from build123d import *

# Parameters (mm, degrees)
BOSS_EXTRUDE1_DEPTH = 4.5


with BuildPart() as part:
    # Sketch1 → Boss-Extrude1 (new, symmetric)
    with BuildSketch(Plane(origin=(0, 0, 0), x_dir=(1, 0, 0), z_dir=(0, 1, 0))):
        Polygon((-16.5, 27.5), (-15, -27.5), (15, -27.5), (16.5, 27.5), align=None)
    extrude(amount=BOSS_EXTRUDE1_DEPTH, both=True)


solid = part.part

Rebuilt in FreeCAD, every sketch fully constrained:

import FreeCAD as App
import Part
import Sketcher
from FreeCAD import Vector
Q = App.Units.Quantity

doc = App.newDocument("Part")
params = doc.addObject("Spreadsheet::Sheet", "Params")
for row, (alias, value) in enumerate([
    ("sketch1_width", "30 mm"),
    ("sketch1_width2", "33 mm"),
    ("pad1_length", "9 mm"),
], start=1):
    params.set(f"A{row}", alias)
    params.set(f"B{row}", "=" + value)
    params.setAlias(f"B{row}", alias)

body = doc.addObject("PartDesign::Body", "Body")

sketch1 = doc.addObject("Sketcher::SketchObject", "Sketch")
body.addObject(sketch1)
sketch1.AttachmentSupport = (doc.XZ_Plane, [""])
sketch1.MapMode = "FlatFace"
sketch1.addGeometry([
    Part.LineSegment(Vector(-16, -28, 0), Vector(-15, 28, 0)),
    Part.LineSegment(Vector(-15, 28, 0), Vector(15, 28, 0)),
    Part.LineSegment(Vector(15, 28, 0), Vector(16, -28, 0)),
    Part.LineSegment(Vector(16, -28, 0), Vector(-16, -28, 0)),
], False)
sketch1.addConstraint([
    Sketcher.Constraint("Coincident", 0, 2, 1, 1),
    Sketcher.Constraint("Coincident", 1, 2, 2, 1),
    Sketcher.Constraint("Coincident", 2, 2, 3, 1),
    Sketcher.Constraint("Coincident", 3, 2, 0, 1),
    Sketcher.Constraint("Horizontal", 1),
    Sketcher.Constraint("Horizontal", 3),
    Sketcher.Constraint("Equal", 0, 2),
    Sketcher.Constraint("DistanceX", 1, 1, 1, 2, Q("30 mm")),
    Sketcher.Constraint("DistanceX", 3, 2, 3, 1, Q("33 mm")),
    Sketcher.Constraint("DistanceX", 0, 2, -1, 1, Q("15 mm")),
    Sketcher.Constraint("DistanceY", 2, 2, 1, 2, Q("55 mm")),
    Sketcher.Constraint("DistanceY", -1, 1, 0, 2, Q("27.5 mm")),
])
sketch1.setExpression("Constraints[7]", "Params.sketch1_width")
sketch1.setExpression("Constraints[8]", "Params.sketch1_width2")
pad1 = doc.addObject("PartDesign::Pad", "Pad")
body.addObject(pad1)
pad1.Profile = sketch1
pad1.setExpression("Length", "Params.pad1_length")
pad1.Midplane = True

doc.recompute()
